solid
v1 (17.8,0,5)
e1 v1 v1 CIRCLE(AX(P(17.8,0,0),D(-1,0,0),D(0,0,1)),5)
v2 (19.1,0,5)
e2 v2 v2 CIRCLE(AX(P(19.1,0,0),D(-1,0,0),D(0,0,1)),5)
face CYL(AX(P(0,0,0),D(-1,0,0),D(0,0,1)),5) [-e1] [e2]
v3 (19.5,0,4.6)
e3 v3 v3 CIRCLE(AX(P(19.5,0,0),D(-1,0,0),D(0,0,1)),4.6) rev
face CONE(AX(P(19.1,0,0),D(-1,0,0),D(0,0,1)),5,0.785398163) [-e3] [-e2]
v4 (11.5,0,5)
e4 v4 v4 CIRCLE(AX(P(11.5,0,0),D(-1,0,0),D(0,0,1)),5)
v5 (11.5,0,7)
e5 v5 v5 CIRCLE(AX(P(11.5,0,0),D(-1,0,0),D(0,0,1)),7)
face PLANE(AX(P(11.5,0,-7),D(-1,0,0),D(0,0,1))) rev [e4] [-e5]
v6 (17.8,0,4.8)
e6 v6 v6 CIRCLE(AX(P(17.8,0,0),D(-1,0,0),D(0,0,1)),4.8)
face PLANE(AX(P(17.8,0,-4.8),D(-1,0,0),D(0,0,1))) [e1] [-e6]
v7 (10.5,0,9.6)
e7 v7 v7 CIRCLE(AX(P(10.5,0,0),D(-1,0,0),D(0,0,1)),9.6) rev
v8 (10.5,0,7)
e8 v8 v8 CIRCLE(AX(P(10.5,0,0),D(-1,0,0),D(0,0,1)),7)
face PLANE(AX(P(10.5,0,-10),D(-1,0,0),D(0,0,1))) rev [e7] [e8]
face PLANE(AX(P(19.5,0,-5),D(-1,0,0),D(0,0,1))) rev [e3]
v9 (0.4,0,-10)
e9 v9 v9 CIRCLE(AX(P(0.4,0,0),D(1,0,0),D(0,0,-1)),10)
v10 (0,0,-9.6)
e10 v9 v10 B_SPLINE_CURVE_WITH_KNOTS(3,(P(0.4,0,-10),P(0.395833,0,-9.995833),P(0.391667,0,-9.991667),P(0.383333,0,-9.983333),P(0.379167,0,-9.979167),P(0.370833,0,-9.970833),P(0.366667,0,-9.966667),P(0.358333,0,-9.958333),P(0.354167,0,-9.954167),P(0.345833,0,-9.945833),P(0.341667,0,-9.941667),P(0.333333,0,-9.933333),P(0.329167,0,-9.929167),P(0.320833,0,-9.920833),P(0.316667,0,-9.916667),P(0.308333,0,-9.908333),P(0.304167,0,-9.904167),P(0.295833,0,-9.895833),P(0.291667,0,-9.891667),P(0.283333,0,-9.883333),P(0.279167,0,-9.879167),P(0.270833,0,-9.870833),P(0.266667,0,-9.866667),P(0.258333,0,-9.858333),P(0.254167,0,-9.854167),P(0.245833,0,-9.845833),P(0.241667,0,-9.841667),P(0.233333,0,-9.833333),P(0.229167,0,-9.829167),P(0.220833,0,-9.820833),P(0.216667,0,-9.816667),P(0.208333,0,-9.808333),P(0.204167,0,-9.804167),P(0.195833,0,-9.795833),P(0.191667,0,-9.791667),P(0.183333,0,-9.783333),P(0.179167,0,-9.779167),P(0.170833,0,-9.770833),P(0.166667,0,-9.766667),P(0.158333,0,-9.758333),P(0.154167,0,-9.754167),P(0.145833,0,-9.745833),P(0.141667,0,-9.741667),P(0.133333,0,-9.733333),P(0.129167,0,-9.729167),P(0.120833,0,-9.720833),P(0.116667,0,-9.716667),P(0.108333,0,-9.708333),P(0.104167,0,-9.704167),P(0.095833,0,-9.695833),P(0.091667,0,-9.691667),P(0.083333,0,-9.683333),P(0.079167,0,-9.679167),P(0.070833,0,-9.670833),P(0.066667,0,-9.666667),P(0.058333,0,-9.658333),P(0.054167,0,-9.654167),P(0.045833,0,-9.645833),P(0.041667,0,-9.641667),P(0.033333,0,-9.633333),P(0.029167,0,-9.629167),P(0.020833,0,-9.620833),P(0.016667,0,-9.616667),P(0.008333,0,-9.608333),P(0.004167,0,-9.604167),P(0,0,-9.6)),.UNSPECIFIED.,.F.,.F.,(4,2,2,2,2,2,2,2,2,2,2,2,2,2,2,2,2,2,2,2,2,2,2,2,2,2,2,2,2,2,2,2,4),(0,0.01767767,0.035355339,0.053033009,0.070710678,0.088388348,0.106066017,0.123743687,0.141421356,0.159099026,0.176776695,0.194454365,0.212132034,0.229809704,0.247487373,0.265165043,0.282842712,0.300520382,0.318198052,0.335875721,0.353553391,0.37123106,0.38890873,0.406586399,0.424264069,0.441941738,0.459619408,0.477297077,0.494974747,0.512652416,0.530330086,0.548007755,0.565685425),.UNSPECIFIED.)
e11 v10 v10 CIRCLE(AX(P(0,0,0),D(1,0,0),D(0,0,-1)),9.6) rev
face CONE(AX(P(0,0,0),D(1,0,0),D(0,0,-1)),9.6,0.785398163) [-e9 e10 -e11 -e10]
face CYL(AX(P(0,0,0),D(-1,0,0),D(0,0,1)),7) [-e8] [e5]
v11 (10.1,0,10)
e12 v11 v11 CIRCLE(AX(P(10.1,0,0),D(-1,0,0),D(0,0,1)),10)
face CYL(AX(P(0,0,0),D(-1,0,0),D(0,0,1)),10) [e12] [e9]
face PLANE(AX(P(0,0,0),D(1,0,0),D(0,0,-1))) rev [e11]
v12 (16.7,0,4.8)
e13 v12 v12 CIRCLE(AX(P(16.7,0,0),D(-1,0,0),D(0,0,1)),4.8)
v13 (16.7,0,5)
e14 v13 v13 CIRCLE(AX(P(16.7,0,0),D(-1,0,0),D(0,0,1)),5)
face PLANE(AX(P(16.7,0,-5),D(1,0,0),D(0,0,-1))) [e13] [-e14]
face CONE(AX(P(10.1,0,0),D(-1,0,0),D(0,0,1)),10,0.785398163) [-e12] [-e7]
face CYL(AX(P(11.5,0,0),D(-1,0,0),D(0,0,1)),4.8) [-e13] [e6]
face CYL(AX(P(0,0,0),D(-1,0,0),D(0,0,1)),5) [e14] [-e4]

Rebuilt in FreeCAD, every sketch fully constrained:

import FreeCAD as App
import Part
import Sketcher

V = App.Vector


def edges_at(feature, points):
    """Names of the edges that pass closest to the given points."""
    edges = feature.Shape.Edges
    near = lambda p: min(range(len(edges)), key=lambda i: edges[i].distToShape(Part.Vertex(*p))[0])
    return sorted({f"Edge{near(p) + 1}" for p in points})

doc = App.newDocument("Part")
body = doc.addObject("PartDesign::Body", "Body")

sketch1 = body.newObject("Sketcher::SketchObject", "Sketch")
sketch1.AttachmentSupport = (doc.getObject("XZ_Plane"), [""])
sketch1.MapMode = "FlatFace"
sketch1.addGeometry([
    Part.LineSegment(V(0, -10, 0), V(0, 0, 0)),
    Part.LineSegment(V(0, 0, 0), V(19.5, 0, 0)),
    Part.LineSegment(V(19.5, 0, 0), V(19.5, -5, 0)),
    Part.LineSegment(V(19.5, -5, 0), V(11.5, -5, 0)),
    Part.LineSegment(V(11.5, -5, 0), V(11.5, -7, 0)),
    Part.LineSegment(V(11.5, -7, 0), V(10.5, -7, 0)),
    Part.LineSegment(V(10.5, -7, 0), V(10.5, -10, 0)),
    Part.LineSegment(V(10.5, -10, 0), V(0, -10, 0)),
], False)
sketch1.addConstraint([
    Sketcher.Constraint("Coincident", 0, 2, 1, 1),
    Sketcher.Constraint("Coincident", 1, 2, 2, 1),
    Sketcher.Constraint("Coincident", 2, 2, 3, 1),
    Sketcher.Constraint("Coincident", 3, 2, 4, 1),
    Sketcher.Constraint("Coincident", 4, 2, 5, 1),
    Sketcher.Constraint("Coincident", 5, 2, 6, 1),
    Sketcher.Constraint("Coincident", 6, 2, 7, 1),
    Sketcher.Constraint("Coincident", 7, 2, 0, 1),
    Sketcher.Constraint("Vertical", 0),
    Sketcher.Constraint("Horizontal", 1),
    Sketcher.Constraint("Vertical", 2),
    Sketcher.Constraint("Horizontal", 3),
    Sketcher.Constraint("Vertical", 4),
    Sketcher.Constraint("Horizontal", 5),
    Sketcher.Constraint("Vertical", 6),
    Sketcher.Constraint("Horizontal", 7),
    Sketcher.Constraint("Coincident", 0, 2, -1, 1),
    Sketcher.Constraint("DistanceX", 3, 2, 3, 1, 8.0),
    Sketcher.Constraint("DistanceX", 5, 2, 5, 1, 1.0),
    Sketcher.Constraint("DistanceY", 0, 1, 0, 2, 10.0),
    Sketcher.Constraint("DistanceY", 2, 2, 2, 1, 5.0),
    Sketcher.Constraint("DistanceY", 4, 2, 4, 1, 2.0),
    Sketcher.Constraint("DistanceX", 1, 1, 1, 2, 19.5),
])
revolution = body.newObject("PartDesign::Revolution", "Revolution")
revolution.Profile = sketch1
revolution.ReferenceAxis = (sketch1, ["H_Axis"])
revolution.Angle = 360
doc.recompute()

chamfer = body.newObject("PartDesign::Chamfer", "Chamfer")
chamfer.Base = (revolution, edges_at(revolution, [(19.5, 0, -5), (10.5, 0, -10), (0, 0, -10)]))
chamfer.Size = 0.4

sketch2 = body.newObject("Sketcher::SketchObject", "Sketch001")
sketch2.AttachmentSupport = (doc.getObject("XZ_Plane"), [""])
sketch2.MapMode = "FlatFace"
sketch2.addGeometry([
    Part.LineSegment(V(16.7, -5, 0), V(16.7, -4.8, 0)),
    Part.LineSegment(V(16.7, -4.8, 0), V(17.8, -4.8, 0)),
    Part.LineSegment(V(17.8, -4.8, 0), V(17.8, -5, 0)),
    Part.LineSegment(V(17.8, -5, 0), V(16.7, -5, 0)),
], False)
sketch2.addConstraint([
    Sketcher.Constraint("Coincident", 0, 2, 1, 1),
    Sketcher.Constraint("Coincident", 1, 2, 2, 1),
    Sketcher.Constraint("Coincident", 2, 2, 3, 1),
    Sketcher.Constraint("Coincident", 3, 2, 0, 1),
    Sketcher.Constraint("Vertical", 0),
    Sketcher.Constraint("Horizontal", 1),
    Sketcher.Constraint("Vertical", 2),
    Sketcher.Constraint("Horizontal", 3),
    Sketcher.Constraint("DistanceX", 1, 1, 1, 2, 1.1),
    Sketcher.Constraint("DistanceY", 0, 1, 0, 2, 0.2),
    Sketcher.Constraint("DistanceY", 2, 2, -1, 1, 5.0),
    Sketcher.Constraint("DistanceX", -1, 1, 0, 2, 16.7),
])
groove = body.newObject("PartDesign::Groove", "Groove")
groove.Profile = sketch2
groove.ReferenceAxis = (sketch2, ["H_Axis"])
groove.Angle = 360

doc.recompute()
